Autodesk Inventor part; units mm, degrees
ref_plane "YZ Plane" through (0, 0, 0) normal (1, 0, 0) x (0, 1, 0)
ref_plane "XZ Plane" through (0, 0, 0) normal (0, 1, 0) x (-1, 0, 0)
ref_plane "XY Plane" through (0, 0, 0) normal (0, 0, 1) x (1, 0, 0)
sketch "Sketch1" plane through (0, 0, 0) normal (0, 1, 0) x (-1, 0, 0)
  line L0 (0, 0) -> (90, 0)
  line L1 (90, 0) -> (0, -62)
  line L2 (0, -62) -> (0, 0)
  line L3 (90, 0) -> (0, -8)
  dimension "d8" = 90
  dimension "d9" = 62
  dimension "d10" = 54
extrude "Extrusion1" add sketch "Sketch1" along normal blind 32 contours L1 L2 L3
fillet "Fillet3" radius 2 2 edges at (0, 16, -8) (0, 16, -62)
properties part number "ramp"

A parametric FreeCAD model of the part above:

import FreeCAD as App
import Part
import Sketcher

V = App.Vector


def edges_at(feature, points):
    """Names of the edges that pass closest to the given points."""
    edges = feature.Shape.Edges
    near = lambda p: min(range(len(edges)), key=lambda i: edges[i].distToShape(Part.Vertex(*p))[0])
    return sorted({f"Edge{near(p) + 1}" for p in points})


def add_polygon(sketch, points):
    """Adds a closed chain of lines whose ends are joined by coincident constraints."""
    first, n = sketch.GeometryCount, len(points)
    for a, b in zip(points, points[1:] + points[:1]):
        sketch.addGeometry(Part.LineSegment(App.Vector(*a, 0), App.Vector(*b, 0)), False)
    for i in range(n):
        sketch.addConstraint(Sketcher.Constraint("Coincident", first + i, 2, first + (i + 1) % n, 1))

doc = App.newDocument("Part")
body = doc.addObject("PartDesign::Body", "Body")

# Sketch on XZ plane
sketch1 = body.newObject("Sketcher::SketchObject", "Sketch")
sketch1.AttachmentSupport = (doc.getObject("XZ_Plane"), [""])
sketch1.MapMode = "FlatFace"
add_polygon(sketch1, [(0, -62), (-90, 0), (0, -8)])  # lines 0-2
sketch1.addConstraint(Sketcher.Constraint("Vertical", 2))
sketch1.addConstraint(Sketcher.Constraint("PointOnObject", 0, 2, -1))
sketch1.addConstraint(Sketcher.Constraint("PointOnObject", 1, 2, -2))
sketch1.addConstraint(Sketcher.Constraint("DistanceY", 2, 2, 2, 1, 54.0))
sketch1.addConstraint(Sketcher.Constraint("DistanceX", 0, 2, -1, 1, 90.0))
sketch1.addConstraint(Sketcher.Constraint("DistanceY", 2, 2, -1, 1, 62.0))
pad1 = body.newObject("PartDesign::Pad", "Pad")
pad1.Profile = sketch1
pad1.Length = 32
pad1.Reversed = True
doc.recompute()

fillet = body.newObject("PartDesign::Fillet", "Fillet")
fillet.Base = (pad1, edges_at(pad1, [(0, 16, -8), (0, 16, -62)]))
fillet.Radius = 2

doc.recompute()
